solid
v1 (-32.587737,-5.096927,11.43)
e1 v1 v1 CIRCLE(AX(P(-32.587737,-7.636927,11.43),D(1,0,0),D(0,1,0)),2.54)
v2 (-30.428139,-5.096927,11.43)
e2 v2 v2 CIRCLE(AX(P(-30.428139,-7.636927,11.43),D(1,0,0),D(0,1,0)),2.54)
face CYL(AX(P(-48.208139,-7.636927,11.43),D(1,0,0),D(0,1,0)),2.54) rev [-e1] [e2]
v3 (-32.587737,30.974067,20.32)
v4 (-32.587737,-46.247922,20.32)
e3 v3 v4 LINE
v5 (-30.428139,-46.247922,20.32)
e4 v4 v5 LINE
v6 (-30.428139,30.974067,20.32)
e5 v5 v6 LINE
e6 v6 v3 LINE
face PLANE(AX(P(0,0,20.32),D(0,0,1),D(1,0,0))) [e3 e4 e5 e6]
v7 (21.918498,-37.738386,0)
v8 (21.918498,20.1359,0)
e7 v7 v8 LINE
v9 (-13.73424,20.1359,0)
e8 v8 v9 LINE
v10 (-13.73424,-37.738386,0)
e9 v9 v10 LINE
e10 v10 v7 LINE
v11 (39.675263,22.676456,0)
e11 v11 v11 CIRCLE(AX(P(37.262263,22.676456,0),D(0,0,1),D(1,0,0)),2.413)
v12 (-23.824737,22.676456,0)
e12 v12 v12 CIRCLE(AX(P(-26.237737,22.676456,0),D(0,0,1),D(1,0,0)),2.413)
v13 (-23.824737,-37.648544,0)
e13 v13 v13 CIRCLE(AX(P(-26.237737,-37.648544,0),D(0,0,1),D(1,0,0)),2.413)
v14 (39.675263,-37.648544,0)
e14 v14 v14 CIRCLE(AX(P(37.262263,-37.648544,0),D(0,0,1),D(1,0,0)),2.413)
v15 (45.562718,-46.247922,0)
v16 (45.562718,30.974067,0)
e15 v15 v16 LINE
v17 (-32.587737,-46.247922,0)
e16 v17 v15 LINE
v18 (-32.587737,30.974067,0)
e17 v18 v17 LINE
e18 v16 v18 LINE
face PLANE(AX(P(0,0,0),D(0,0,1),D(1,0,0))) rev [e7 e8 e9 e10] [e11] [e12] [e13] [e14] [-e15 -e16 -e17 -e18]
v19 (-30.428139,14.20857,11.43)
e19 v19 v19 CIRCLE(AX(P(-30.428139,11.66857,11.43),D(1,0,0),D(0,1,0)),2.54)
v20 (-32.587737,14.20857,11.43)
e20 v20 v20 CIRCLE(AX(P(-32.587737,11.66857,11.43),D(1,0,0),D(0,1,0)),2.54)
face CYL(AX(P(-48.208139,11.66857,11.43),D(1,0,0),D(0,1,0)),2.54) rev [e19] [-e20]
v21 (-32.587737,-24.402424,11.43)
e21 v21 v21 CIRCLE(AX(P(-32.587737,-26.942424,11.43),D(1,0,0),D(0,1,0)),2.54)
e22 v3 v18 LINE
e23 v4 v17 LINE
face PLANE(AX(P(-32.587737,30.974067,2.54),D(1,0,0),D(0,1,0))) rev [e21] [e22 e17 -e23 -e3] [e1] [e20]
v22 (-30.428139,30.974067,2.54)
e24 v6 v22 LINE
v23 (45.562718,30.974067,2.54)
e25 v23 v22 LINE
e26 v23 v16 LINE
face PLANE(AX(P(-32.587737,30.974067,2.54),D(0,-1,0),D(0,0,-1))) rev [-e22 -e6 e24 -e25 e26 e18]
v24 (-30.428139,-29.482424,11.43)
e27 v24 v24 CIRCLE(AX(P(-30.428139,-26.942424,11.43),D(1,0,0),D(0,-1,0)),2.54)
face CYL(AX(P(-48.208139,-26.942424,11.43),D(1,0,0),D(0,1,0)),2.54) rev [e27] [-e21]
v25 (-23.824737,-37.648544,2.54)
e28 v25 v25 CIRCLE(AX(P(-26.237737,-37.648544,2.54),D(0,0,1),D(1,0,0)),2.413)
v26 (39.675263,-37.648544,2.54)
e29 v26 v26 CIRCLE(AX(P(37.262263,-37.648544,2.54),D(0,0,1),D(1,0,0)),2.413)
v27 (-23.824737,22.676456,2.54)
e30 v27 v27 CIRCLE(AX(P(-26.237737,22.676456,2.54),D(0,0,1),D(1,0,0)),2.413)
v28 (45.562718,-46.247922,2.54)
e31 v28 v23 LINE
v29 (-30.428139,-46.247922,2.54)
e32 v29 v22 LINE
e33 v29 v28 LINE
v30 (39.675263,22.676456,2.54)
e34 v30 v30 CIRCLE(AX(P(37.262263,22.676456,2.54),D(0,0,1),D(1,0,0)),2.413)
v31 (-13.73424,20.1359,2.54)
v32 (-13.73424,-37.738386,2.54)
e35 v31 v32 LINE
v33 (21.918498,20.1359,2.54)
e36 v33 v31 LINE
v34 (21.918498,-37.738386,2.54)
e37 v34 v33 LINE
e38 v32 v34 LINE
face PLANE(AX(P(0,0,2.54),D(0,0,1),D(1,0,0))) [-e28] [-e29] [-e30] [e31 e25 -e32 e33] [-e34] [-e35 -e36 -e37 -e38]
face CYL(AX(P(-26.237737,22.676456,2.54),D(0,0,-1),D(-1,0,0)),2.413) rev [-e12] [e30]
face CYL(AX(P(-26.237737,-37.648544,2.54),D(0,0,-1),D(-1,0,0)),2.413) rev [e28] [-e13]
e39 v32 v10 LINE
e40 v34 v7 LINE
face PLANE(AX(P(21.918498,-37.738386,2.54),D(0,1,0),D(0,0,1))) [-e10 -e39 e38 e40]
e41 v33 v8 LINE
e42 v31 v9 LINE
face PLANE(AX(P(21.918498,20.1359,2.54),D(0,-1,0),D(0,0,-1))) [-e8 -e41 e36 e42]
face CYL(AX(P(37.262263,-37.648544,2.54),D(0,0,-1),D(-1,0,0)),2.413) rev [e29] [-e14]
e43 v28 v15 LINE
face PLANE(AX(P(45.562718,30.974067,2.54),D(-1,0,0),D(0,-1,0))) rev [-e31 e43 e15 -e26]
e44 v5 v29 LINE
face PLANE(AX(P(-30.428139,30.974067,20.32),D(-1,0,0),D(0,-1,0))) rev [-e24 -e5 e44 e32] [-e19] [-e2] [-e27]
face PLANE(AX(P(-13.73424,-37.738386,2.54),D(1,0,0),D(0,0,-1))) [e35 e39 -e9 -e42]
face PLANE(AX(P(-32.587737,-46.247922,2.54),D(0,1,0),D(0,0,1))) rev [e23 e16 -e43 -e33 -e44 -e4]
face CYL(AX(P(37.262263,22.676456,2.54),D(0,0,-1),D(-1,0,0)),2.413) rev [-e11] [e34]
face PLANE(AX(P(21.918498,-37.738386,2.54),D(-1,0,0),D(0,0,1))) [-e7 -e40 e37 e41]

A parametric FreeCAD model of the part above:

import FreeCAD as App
import Part
import Sketcher

V = App.Vector
Q = App.Units.Quantity


def add_polygon(sketch, points):
    """Adds a closed chain of lines whose ends are joined by coincident constraints."""
    first, n = sketch.GeometryCount, len(points)
    for a, b in zip(points, points[1:] + points[:1]):
        sketch.addGeometry(Part.LineSegment(App.Vector(*a, 0), App.Vector(*b, 0)), False)
    for i in range(n):
        sketch.addConstraint(Sketcher.Constraint("Coincident", first + i, 2, first + (i + 1) % n, 1))

doc = App.newDocument("Part")
body = doc.addObject("PartDesign::Body", "Body")

sketch1 = doc.addObject("Sketcher::SketchObject", "Sketch")
body.addObject(sketch1)
sketch1.AttachmentSupport = (doc.XY_Plane, [""])
sketch1.MapMode = "FlatFace"
add_polygon(sketch1, [(-32.6, 31), (-32.6, -46.2), (45.6, -46.2), (45.6, 31)])
sketch1.addGeometry(Part.Circle(V(-26.2, -37.6, 0), V(0, 0, 1), 2.4), False)
add_polygon(sketch1, [(21.9, -37.7), (-13.7, -37.7), (-13.7, 20.1), (21.9, 20.1)])
sketch1.addGeometry(Part.Circle(V(37.3, -37.6, 0), V(0, 0, 1), 2.4), False)
sketch1.addGeometry(Part.Circle(V(-26.2, 22.7, 0), V(0, 0, 1), 2.4), False)
sketch1.addGeometry(Part.Circle(V(37.3, 22.7, 0), V(0, 0, 1), 2.4), False)
sketch1.addConstraint(Sketcher.Constraint("Vertical", 0))
sketch1.addConstraint(Sketcher.Constraint("Horizontal", 1))
sketch1.addConstraint(Sketcher.Constraint("Vertical", 2))
sketch1.addConstraint(Sketcher.Constraint("Horizontal", 3))
sketch1.addConstraint(Sketcher.Constraint("Horizontal", 5))
sketch1.addConstraint(Sketcher.Constraint("Vertical", 6))
sketch1.addConstraint(Sketcher.Constraint("Horizontal", 7))
sketch1.addConstraint(Sketcher.Constraint("Vertical", 8))
sketch1.addConstraint(Sketcher.Constraint("Equal", 4, 9))
sketch1.addConstraint(Sketcher.Constraint("Equal", 9, 10))
sketch1.addConstraint(Sketcher.Constraint("Equal", 10, 11))
sketch1.addConstraint(Sketcher.Constraint("Horizontal", 4, 3, 9, 3))
sketch1.addConstraint(Sketcher.Constraint("Horizontal", 10, 3, 11, 3))
sketch1.addConstraint(Sketcher.Constraint("Vertical", 4, 3, 10, 3))
sketch1.addConstraint(Sketcher.Constraint("Vertical", 9, 3, 11, 3))
sketch1.addConstraint(Sketcher.Constraint("Diameter", 4, Q("0.19 in")))
sketch1.addConstraint(Sketcher.Constraint("DistanceX", 4, 3, 9, 3, Q("2.5 in")))
sketch1.addConstraint(Sketcher.Constraint("DistanceX", 0, 2, 4, 3, Q("0.25 in")))
sketch1.addConstraint(Sketcher.Constraint("DistanceY", 4, 3, 10, 3, Q("2.375 in")))
sketch1.addConstraint(Sketcher.Constraint("DistanceX", 5, 2, 5, 1, 35.652739))
sketch1.addConstraint(Sketcher.Constraint("DistanceY", 0, 2, 0, 1, 77.221988))
sketch1.addConstraint(Sketcher.Constraint("DistanceY", -1, 1, 6, 2, 20.1359))
sketch1.addConstraint(Sketcher.Constraint("DistanceX", -1, 1, 7, 2, 21.918498))
sketch1.addConstraint(Sketcher.Constraint("DistanceX", 1, 1, 1, 2, 78.150455))
sketch1.addConstraint(Sketcher.Constraint("DistanceY", 6, 1, 6, 2, 57.874286))
sketch1.addConstraint(Sketcher.Constraint("DistanceY", 0, 2, -1, 1, 46.247922))
sketch1.addConstraint(Sketcher.Constraint("DistanceY", 11, 3, 2, 2, 8.297611))
sketch1.addConstraint(Sketcher.Constraint("DistanceX", 5, 2, 1, 2, 59.296958))
pad1 = doc.addObject("PartDesign::Pad", "Pad")
body.addObject(pad1)
pad1.Profile = sketch1
pad1.Length = Q("0.1 in")

sketch2 = doc.addObject("Sketcher::SketchObject", "Sketch001")
body.addObject(sketch2)
sketch2.AttachmentSupport = (doc.XY_Plane, [""])
sketch2.MapMode = "FlatFace"
sketch2.AttachmentOffset = App.Placement(V(0, 0, 0.1 * 25.4), App.Rotation())
add_polygon(sketch2, [(-32.6, 31), (-32.6, -46.2), (-30.4, -46.2), (-30.4, 31)])
sketch2.addConstraint(Sketcher.Constraint("Vertical", 0))
sketch2.addConstraint(Sketcher.Constraint("Horizontal", 1))
sketch2.addConstraint(Sketcher.Constraint("Vertical", 2))
sketch2.addConstraint(Sketcher.Constraint("Horizontal", 3))
sketch2.addConstraint(Sketcher.Constraint("DistanceX", 1, 1, 1, 2, 2.159598))
sketch2.addConstraint(Sketcher.Constraint("DistanceY", 0, 2, 0, 1, 77.221988))
sketch2.addConstraint(Sketcher.Constraint("DistanceY", 0, 2, -1, 1, 46.247922))
sketch2.addConstraint(Sketcher.Constraint("DistanceX", 1, 2, -1, 1, 30.428139))
pad2 = doc.addObject("PartDesign::Pad", "Pad001")
body.addObject(pad2)
pad2.Profile = sketch2
pad2.Length = Q("0.7 in")

sketch3 = doc.addObject("Sketcher::SketchObject", "Sketch002")
body.addObject(sketch3)
sketch3.AttachmentSupport = (doc.YZ_Plane, [""])
sketch3.MapMode = "FlatFace"
sketch3.AttachmentOffset = App.Placement(V(0, 0, -30.428139), App.Rotation())
sketch3.addGeometry(Part.Circle(V(-7.6, 11.4, 0), V(0, 0, 1), 2.5), False)
sketch3.addGeometry(Part.Circle(V(11.7, 11.4, 0), V(0, 0, 1), 2.5), False)
sketch3.addGeometry(Part.Circle(V(-26.9, 11.4, 0), V(0, 0, 1), 2.5), False)
sketch3.addConstraint(Sketcher.Constraint("Equal", 0, 1))
sketch3.addConstraint(Sketcher.Constraint("Equal", 1, 2))
sketch3.addConstraint(Sketcher.Constraint("Horizontal", 0, 3, 1, 3))
sketch3.addConstraint(Sketcher.Constraint("Horizontal", 1, 3, 2, 3))
sketch3.addConstraint(Sketcher.Constraint("Diameter", 0, Q("0.2 in")))
sketch3.addConstraint(Sketcher.Constraint("DistanceY", -1, 1, 0, 3, Q("0.45 in")))
sketch3.addConstraint(Sketcher.Constraint("DistanceX", -1, 1, 1, 3, 11.66857))
sketch3.addConstraint(Sketcher.Constraint("DistanceX", 0, 3, -1, 1, 7.636927))
sketch3.addConstraint(Sketcher.Constraint("DistanceX", 2, 3, -1, 1, 26.942424))
pocket1 = doc.addObject("PartDesign::Pocket", "Pocket")
body.addObject(pocket1)
pocket1.Profile = sketch3
pocket1.Length = Q("0.7 in")

doc.recompute()
